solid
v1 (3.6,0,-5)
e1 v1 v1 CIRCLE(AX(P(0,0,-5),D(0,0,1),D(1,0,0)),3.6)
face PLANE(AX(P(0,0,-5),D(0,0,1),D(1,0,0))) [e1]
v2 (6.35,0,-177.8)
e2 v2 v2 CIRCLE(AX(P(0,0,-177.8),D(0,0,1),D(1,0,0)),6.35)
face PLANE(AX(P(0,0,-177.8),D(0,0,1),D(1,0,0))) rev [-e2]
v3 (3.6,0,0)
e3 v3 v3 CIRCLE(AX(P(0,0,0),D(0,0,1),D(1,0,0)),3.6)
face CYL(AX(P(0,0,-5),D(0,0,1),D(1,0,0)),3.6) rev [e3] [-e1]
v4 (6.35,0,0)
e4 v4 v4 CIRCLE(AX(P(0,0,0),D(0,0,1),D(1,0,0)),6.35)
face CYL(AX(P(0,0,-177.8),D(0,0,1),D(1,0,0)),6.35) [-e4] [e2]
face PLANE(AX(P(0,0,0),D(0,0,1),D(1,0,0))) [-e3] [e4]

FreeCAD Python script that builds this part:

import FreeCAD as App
import Part
import Sketcher

V = App.Vector
Q = App.Units.Quantity

doc = App.newDocument("Part")
body = doc.addObject("PartDesign::Body", "Body")

sketch1 = body.newObject("Sketcher::SketchObject", "Sketch")
sketch1.AttachmentSupport = (doc.getObject("XY_Plane"), [""])
sketch1.MapMode = "FlatFace"
sketch1.addGeometry(Part.Circle(V(0, 0, 0), V(0, 0, 1), 6.35), False)
sketch1.addConstraint(Sketcher.Constraint("Coincident", 0, 3, -1, 1))
sketch1.addConstraint(Sketcher.Constraint("Diameter", 0, Q("12.7 mm")))
pad1 = body.newObject("PartDesign::Pad", "Pad")
pad1.Profile = sketch1
pad1.Length = 177.8
pad1.Reversed = True

sketch2 = body.newObject("Sketcher::SketchObject", "Sketch001")
sketch2.AttachmentSupport = (doc.getObject("XY_Plane"), [""])
sketch2.MapMode = "FlatFace"
sketch2.addGeometry(Part.Circle(V(0, 0, 0), V(0, 0, 1), 3.6), False)
sketch2.addConstraint(Sketcher.Constraint("Coincident", 0, 3, -1, 1))
sketch2.addConstraint(Sketcher.Constraint("Diameter", 0, Q("7.2 mm")))
pocket1 = body.newObject("PartDesign::Pocket", "Pocket")
pocket1.Profile = sketch2
pocket1.Length = 5

doc.recompute()
